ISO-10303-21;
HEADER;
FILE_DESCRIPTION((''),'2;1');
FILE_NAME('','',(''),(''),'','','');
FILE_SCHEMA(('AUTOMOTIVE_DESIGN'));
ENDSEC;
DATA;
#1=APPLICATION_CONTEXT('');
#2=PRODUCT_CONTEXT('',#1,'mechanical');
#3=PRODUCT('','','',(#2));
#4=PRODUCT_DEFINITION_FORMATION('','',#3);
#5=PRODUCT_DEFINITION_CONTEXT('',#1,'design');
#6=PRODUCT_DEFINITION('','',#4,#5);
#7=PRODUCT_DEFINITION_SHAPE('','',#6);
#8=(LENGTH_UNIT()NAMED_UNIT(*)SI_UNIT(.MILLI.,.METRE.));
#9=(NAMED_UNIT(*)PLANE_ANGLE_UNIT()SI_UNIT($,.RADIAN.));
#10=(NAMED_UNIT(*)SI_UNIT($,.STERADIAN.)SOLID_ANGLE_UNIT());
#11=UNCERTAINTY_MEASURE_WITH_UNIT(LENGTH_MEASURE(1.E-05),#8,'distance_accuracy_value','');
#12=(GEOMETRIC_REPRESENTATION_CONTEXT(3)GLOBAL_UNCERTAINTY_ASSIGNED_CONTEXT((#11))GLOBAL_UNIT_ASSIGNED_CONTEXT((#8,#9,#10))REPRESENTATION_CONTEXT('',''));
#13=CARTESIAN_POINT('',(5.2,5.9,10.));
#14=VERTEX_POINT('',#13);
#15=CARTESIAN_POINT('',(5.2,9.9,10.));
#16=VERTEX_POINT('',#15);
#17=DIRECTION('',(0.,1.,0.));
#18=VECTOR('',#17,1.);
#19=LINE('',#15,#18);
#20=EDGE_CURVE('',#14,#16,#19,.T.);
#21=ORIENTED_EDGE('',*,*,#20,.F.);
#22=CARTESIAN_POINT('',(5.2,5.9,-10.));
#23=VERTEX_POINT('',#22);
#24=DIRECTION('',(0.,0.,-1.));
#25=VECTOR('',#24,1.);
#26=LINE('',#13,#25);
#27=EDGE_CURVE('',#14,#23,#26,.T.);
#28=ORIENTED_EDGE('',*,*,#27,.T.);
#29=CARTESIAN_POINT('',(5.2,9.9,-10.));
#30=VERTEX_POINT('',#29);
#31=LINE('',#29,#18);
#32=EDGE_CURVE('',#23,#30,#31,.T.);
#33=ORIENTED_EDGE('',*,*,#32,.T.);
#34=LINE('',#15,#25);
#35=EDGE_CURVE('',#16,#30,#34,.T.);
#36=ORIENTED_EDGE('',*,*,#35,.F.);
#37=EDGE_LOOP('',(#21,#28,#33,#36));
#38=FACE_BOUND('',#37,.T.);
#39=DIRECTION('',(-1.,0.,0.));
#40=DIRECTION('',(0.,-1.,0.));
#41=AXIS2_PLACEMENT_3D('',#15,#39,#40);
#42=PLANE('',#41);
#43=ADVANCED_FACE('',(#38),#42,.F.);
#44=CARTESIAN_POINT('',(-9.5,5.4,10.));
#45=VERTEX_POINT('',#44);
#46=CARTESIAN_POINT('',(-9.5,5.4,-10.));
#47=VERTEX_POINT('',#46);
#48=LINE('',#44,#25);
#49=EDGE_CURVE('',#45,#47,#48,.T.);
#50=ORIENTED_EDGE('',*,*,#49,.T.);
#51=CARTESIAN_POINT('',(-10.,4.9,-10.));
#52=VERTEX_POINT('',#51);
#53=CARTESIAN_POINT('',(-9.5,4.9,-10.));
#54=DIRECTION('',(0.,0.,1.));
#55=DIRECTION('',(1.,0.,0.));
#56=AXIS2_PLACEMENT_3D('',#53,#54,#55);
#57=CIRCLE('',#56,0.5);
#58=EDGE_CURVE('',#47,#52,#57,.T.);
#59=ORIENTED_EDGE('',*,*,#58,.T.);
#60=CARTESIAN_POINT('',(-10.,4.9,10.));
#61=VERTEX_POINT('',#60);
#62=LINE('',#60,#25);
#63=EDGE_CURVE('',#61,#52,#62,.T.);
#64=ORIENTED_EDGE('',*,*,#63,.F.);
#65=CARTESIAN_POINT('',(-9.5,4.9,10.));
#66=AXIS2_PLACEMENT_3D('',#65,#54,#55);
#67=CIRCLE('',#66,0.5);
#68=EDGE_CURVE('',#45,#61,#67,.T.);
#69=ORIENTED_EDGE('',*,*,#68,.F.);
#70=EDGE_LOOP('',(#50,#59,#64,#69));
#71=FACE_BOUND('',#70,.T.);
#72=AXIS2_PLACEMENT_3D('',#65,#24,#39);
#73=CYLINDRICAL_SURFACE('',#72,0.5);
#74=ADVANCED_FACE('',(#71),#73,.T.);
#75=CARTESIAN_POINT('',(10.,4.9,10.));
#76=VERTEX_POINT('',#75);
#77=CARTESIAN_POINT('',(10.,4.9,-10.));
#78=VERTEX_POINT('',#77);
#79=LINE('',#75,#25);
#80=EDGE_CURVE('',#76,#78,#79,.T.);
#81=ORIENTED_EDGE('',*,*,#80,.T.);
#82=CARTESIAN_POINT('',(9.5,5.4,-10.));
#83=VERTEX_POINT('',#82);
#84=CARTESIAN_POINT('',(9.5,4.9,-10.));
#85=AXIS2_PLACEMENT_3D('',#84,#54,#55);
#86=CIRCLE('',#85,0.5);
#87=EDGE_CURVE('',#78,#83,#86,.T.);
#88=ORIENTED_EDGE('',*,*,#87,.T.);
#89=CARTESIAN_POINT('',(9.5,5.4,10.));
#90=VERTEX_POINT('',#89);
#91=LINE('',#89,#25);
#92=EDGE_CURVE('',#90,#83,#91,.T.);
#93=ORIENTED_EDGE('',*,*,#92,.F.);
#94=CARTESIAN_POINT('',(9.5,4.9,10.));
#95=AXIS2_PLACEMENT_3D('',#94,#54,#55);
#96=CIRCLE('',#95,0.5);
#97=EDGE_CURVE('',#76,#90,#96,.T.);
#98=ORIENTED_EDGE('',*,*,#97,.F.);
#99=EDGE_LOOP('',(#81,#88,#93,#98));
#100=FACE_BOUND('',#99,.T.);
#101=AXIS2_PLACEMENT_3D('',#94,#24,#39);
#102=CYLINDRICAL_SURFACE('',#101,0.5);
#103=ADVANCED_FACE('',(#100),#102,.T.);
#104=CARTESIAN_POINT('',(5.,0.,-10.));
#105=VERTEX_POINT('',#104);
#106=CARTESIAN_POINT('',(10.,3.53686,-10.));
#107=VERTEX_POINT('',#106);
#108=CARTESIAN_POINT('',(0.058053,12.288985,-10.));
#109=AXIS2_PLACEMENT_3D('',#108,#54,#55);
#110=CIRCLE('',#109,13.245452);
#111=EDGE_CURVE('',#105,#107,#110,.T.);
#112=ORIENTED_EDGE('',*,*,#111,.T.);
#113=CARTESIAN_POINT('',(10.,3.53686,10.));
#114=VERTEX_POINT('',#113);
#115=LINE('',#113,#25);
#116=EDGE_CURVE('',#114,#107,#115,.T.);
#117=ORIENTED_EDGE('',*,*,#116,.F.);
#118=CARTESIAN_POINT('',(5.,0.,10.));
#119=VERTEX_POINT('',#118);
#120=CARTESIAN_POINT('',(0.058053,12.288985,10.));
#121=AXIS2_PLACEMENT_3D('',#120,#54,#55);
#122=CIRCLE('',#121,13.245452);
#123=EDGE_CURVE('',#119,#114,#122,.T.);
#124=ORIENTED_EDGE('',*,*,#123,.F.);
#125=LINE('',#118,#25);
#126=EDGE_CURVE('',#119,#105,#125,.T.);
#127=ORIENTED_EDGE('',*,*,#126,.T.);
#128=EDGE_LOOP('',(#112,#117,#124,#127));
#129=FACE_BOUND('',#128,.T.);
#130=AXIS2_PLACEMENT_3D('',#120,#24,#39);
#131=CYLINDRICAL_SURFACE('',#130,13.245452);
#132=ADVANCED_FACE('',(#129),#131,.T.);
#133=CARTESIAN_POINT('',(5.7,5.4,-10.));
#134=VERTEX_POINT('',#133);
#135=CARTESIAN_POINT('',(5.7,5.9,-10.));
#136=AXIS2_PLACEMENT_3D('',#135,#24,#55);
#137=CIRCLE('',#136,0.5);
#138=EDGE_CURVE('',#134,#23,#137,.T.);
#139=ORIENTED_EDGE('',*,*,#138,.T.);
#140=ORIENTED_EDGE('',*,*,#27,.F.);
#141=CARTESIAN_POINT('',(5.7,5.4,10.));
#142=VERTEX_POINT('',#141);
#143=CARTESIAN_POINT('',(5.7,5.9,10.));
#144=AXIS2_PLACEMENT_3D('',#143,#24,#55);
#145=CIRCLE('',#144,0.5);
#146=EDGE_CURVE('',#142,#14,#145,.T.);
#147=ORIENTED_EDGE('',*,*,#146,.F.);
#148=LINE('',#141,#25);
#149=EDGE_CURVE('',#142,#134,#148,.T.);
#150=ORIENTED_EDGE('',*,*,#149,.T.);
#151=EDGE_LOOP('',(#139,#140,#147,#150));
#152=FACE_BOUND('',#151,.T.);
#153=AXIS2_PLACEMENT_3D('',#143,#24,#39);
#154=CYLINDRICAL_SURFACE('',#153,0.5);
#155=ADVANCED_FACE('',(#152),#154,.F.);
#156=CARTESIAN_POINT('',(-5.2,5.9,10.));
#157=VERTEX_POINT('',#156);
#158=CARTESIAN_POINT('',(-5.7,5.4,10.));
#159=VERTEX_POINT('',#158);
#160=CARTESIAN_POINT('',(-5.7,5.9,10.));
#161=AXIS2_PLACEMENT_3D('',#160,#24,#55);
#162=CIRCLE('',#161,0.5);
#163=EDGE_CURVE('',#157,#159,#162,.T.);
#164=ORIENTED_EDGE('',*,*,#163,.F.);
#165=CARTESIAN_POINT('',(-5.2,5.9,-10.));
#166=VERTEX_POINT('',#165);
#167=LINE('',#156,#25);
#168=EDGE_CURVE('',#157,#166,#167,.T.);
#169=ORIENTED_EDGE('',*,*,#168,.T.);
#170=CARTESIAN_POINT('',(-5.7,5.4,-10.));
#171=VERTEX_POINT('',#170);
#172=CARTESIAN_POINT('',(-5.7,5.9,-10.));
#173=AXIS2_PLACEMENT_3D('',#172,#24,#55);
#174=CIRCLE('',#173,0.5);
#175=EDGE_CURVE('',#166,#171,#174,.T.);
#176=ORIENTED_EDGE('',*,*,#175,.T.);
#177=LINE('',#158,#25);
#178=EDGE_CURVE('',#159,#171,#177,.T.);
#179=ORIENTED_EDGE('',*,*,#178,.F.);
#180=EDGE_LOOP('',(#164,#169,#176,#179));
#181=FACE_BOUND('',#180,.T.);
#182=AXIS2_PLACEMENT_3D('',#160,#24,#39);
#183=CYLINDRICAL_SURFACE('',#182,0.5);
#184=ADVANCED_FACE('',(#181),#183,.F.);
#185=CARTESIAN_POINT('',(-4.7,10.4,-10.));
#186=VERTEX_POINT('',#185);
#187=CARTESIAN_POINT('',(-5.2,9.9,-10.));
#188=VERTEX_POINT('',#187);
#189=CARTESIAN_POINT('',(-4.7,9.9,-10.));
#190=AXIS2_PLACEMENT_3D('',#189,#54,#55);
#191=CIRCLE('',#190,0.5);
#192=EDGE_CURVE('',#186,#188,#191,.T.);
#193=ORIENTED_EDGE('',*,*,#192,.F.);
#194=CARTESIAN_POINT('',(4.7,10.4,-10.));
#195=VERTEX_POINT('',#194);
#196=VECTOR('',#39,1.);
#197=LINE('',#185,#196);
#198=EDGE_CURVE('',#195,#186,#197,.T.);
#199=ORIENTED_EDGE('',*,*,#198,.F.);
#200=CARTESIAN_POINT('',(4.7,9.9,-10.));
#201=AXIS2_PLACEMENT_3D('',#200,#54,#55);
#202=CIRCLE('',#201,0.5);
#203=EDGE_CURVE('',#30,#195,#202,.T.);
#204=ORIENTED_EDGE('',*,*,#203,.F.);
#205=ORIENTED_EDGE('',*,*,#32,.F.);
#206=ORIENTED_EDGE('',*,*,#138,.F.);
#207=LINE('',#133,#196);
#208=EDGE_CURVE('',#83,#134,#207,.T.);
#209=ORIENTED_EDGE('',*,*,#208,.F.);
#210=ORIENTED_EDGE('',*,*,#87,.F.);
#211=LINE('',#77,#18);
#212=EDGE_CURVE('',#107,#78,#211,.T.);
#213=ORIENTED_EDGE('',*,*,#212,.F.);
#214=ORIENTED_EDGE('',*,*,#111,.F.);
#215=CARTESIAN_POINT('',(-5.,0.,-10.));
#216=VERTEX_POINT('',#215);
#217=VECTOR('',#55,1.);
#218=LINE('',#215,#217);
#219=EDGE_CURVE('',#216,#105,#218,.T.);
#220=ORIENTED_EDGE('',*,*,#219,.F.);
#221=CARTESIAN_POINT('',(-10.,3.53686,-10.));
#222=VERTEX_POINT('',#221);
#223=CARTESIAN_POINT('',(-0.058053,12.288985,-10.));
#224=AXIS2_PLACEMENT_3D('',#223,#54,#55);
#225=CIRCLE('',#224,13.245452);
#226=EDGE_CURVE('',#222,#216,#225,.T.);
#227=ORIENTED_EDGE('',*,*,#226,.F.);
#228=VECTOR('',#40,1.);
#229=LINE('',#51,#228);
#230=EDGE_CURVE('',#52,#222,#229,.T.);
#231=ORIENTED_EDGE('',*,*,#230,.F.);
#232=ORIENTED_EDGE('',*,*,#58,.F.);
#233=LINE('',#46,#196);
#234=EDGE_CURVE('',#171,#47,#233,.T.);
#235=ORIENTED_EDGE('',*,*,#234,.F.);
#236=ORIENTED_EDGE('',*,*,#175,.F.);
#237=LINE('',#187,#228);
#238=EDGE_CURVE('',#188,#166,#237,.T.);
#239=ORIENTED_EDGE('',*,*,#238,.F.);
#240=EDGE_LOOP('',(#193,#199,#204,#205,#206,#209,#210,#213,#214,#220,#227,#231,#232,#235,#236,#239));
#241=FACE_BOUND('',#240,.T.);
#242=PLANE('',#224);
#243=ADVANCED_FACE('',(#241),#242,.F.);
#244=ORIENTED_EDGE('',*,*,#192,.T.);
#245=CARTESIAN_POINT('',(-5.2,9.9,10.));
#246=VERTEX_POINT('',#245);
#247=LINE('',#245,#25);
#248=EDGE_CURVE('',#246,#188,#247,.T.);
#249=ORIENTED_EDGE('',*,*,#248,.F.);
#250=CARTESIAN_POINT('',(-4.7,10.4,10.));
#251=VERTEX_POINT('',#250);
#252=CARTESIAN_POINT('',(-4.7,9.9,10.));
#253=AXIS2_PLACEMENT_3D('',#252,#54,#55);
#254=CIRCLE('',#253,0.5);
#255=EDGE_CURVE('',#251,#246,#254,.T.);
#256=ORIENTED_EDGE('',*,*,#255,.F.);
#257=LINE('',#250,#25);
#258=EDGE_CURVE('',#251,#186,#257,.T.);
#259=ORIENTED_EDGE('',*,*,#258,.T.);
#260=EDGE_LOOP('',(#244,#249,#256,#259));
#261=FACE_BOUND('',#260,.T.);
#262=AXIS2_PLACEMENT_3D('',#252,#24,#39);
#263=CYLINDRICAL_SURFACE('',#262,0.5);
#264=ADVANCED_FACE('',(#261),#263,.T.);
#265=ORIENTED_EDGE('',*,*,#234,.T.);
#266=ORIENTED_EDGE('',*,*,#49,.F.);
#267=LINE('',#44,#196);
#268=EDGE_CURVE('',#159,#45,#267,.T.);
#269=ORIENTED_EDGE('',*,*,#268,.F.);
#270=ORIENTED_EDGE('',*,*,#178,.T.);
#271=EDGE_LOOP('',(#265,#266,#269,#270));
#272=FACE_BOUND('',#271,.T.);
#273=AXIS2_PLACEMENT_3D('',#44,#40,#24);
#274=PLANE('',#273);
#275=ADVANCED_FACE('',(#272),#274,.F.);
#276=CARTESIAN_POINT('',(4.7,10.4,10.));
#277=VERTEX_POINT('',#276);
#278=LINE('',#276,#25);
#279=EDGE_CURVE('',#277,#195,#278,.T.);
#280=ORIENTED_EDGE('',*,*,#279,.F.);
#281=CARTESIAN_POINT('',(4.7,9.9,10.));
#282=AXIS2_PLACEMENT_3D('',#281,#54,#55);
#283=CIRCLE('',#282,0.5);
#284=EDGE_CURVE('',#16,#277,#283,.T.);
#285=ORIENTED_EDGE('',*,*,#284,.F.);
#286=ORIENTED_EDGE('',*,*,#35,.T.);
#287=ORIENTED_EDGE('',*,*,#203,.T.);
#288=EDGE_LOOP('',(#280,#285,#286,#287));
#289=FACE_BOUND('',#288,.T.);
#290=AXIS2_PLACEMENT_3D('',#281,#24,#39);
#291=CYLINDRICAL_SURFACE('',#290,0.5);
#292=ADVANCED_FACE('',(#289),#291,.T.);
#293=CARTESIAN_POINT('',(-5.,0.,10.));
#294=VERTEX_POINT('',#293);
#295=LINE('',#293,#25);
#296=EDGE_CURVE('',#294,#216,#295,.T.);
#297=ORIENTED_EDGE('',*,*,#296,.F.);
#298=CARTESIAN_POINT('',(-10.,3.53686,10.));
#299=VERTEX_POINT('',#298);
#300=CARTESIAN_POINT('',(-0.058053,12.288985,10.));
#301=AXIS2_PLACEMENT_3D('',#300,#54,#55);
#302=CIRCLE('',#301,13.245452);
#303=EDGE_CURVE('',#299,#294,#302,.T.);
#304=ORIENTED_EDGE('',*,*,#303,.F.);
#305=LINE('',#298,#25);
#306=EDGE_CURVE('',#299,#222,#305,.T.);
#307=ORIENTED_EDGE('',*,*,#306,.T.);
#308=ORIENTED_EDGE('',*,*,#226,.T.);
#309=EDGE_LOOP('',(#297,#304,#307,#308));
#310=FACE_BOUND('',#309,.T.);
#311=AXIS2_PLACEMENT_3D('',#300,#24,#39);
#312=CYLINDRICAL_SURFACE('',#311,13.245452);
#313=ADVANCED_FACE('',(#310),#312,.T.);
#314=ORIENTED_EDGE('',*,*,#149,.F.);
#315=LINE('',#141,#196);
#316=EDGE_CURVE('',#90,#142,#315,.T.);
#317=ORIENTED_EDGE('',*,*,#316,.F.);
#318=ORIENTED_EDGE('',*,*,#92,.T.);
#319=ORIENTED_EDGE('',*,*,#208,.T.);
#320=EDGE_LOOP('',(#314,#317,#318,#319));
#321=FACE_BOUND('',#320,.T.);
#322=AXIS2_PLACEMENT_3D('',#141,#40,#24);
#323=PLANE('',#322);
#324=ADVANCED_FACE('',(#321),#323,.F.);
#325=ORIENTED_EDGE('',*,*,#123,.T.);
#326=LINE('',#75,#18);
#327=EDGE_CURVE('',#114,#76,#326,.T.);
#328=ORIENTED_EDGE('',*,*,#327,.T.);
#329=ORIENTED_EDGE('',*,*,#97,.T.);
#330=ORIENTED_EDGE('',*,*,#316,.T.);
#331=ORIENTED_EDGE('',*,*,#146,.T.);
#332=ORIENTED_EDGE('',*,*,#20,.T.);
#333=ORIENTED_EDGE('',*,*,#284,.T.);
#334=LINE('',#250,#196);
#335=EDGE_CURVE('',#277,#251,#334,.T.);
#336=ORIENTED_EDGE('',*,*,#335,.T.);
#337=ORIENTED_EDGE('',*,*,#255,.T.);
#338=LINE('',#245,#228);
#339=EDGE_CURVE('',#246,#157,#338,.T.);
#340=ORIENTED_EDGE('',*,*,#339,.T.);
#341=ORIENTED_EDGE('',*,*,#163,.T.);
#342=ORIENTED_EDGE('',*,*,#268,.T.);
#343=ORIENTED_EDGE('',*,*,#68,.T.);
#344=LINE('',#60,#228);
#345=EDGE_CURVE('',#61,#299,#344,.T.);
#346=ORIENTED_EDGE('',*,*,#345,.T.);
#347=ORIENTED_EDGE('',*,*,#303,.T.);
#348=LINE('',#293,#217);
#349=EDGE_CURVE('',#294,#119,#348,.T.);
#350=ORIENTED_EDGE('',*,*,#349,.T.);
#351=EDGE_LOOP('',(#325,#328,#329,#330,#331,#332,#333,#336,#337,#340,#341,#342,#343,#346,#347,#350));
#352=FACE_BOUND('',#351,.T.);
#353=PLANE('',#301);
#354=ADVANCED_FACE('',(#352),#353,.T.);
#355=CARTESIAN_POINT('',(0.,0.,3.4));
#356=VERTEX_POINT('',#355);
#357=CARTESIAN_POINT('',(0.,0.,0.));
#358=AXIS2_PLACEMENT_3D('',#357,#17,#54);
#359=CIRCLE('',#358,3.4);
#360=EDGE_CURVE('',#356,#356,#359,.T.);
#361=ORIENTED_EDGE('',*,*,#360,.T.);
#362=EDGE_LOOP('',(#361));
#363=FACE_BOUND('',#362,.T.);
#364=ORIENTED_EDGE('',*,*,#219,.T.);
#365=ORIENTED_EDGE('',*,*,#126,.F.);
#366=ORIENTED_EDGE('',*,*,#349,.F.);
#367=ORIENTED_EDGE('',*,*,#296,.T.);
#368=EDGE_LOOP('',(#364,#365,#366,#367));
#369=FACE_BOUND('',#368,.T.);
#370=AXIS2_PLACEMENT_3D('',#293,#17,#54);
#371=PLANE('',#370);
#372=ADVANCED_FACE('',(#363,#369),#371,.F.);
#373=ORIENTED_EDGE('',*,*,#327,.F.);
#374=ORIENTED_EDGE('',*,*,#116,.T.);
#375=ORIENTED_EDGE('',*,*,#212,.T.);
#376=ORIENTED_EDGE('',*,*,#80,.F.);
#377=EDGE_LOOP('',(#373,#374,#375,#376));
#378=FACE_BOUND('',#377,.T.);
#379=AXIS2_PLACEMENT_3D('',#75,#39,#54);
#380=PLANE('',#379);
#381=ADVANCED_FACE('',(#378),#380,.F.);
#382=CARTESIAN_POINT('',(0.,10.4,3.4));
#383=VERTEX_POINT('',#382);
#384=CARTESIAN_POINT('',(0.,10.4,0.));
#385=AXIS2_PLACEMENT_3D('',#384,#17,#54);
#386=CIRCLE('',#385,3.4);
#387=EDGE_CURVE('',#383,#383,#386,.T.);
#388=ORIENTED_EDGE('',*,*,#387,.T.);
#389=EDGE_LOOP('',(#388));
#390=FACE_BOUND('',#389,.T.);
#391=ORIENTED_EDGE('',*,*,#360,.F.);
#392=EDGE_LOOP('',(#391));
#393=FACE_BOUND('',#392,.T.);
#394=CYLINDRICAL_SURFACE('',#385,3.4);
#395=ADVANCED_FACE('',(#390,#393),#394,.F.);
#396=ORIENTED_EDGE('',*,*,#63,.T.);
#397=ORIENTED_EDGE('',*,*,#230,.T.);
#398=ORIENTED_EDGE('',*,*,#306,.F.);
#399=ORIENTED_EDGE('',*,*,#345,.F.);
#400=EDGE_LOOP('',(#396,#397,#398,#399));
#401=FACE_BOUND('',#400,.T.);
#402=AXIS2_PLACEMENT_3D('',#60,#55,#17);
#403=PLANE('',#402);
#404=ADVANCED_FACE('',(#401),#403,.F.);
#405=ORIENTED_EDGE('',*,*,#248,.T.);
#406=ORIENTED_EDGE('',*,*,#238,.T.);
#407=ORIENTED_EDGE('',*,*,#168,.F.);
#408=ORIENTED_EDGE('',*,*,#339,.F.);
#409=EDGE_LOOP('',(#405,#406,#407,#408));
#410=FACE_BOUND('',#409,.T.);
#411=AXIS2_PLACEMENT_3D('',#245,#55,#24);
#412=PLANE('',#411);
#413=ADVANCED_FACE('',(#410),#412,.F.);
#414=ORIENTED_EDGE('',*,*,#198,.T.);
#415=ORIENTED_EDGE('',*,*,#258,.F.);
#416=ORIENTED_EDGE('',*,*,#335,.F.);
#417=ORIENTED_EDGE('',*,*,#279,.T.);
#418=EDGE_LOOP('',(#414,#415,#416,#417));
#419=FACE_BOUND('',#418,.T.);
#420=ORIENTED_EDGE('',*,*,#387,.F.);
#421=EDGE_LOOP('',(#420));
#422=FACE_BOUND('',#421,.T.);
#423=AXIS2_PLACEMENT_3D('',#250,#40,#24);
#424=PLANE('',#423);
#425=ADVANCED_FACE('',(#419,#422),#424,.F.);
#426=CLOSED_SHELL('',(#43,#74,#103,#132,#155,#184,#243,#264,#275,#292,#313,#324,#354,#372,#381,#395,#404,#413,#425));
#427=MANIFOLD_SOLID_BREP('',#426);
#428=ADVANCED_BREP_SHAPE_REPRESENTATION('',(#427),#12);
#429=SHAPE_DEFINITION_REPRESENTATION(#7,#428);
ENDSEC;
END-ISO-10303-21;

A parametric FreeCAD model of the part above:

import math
import FreeCAD as App
import Part
import Sketcher

V = App.Vector

doc = App.newDocument("Part")
body = doc.addObject("PartDesign::Body", "Body")

sketch1 = doc.addObject("Sketcher::SketchObject", "Sketch")
body.addObject(sketch1)
sketch1.AttachmentSupport = (doc.XY_Plane, [""])
sketch1.MapMode = "FlatFace"
sketch1.addGeometry([
    Part.LineSegment(V(-5, 0, 0), V(5, 0, 0)),
    Part.ArcOfCircle(Part.Circle(V(0.06, 12.29, 0), V(0, 0, 1), 13.25), math.radians(-68), math.radians(-41)),
    Part.LineSegment(V(10, 3.54, 0), V(10, 4.9, 0)),
    Part.ArcOfCircle(Part.Circle(V(9.5, 4.9, 0), V(0, 0, 1), 0.5), math.radians(0), math.radians(90)),
    Part.LineSegment(V(9.5, 5.4, 0), V(5.7, 5.4, 0)),
    Part.ArcOfCircle(Part.Circle(V(5.7, 5.9, 0), V(0, 0, 1), 0.5), math.radians(180), math.radians(270)),
    Part.LineSegment(V(5.2, 5.9, 0), V(5.2, 9.9, 0)),
    Part.ArcOfCircle(Part.Circle(V(4.7, 9.9, 0), V(0, 0, 1), 0.5), math.radians(0), math.radians(90)),
    Part.LineSegment(V(4.7, 10.4, 0), V(-4.7, 10.4, 0)),
    Part.ArcOfCircle(Part.Circle(V(-4.7, 9.9, 0), V(0, 0, 1), 0.5), math.radians(90), math.radians(180)),
    Part.LineSegment(V(-5.2, 9.9, 0), V(-5.2, 5.9, 0)),
    Part.ArcOfCircle(Part.Circle(V(-5.7, 5.9, 0), V(0, 0, 1), 0.5), math.radians(-90), math.radians(0)),
    Part.LineSegment(V(-5.7, 5.4, 0), V(-9.5, 5.4, 0)),
    Part.ArcOfCircle(Part.Circle(V(-9.5, 4.9, 0), V(0, 0, 1), 0.5), math.radians(90), math.radians(180)),
    Part.LineSegment(V(-10, 4.9, 0), V(-10, 3.54, 0)),
    Part.ArcOfCircle(Part.Circle(V(-0.06, 12.29, 0), V(0, 0, 1), 13.25), math.radians(-139), math.radians(-112)),
], False)
sketch1.addConstraint([
    Sketcher.Constraint("Coincident", 0, 2, 1, 1),
    Sketcher.Constraint("Coincident", 1, 2, 2, 1),
    Sketcher.Constraint("Tangent", 2, 2, 3, 1),
    Sketcher.Constraint("Tangent", 3, 2, 4, 1),
    Sketcher.Constraint("Tangent", 4, 2, 5, 2),
    Sketcher.Constraint("Tangent", 5, 1, 6, 1),
    Sketcher.Constraint("Tangent", 6, 2, 7, 1),
    Sketcher.Constraint("Tangent", 7, 2, 8, 1),
    Sketcher.Constraint("Tangent", 8, 2, 9, 1),
    Sketcher.Constraint("Tangent", 9, 2, 10, 1),
    Sketcher.Constraint("Tangent", 10, 2, 11, 2),
    Sketcher.Constraint("Tangent", 11, 1, 12, 1),
    Sketcher.Constraint("Tangent", 12, 2, 13, 1),
    Sketcher.Constraint("Tangent", 13, 2, 14, 1),
    Sketcher.Constraint("Coincident", 14, 2, 15, 1),
    Sketcher.Constraint("Coincident", 15, 2, 0, 1),
    Sketcher.Constraint("Horizontal", 0),
    Sketcher.Constraint("Vertical", 2),
    Sketcher.Constraint("Horizontal", 4),
    Sketcher.Constraint("Vertical", 6),
    Sketcher.Constraint("Horizontal", 8),
    Sketcher.Constraint("Vertical", 10),
    Sketcher.Constraint("Horizontal", 12),
    Sketcher.Constraint("Vertical", 14),
    Sketcher.Constraint("Equal", 3, 5),
    Sketcher.Constraint("Equal", 5, 7),
    Sketcher.Constraint("Equal", 7, 9),
    Sketcher.Constraint("Equal", 9, 11),
    Sketcher.Constraint("Equal", 11, 13),
    Sketcher.Constraint("Equal", 1, 15),
    Sketcher.Constraint("Symmetric", 0, 2, 15, 2, -1, 1),
    Sketcher.Constraint("Symmetric", 5, 3, 11, 3, -2),
    Sketcher.Constraint("Symmetric", 1, 2, 14, 2, -2),
    Sketcher.Constraint("Radius", 3, 0.5),
    Sketcher.Constraint("DistanceX", 0, 1, 0, 2, 10.0),
    Sketcher.Constraint("DistanceY", 6, 1, 6, 2, 4.0),
    Sketcher.Constraint("DistanceX", 4, 2, 4, 1, 3.8),
    Sketcher.Constraint("DistanceX", 8, 2, 8, 1, 9.4),
    Sketcher.Constraint("DistanceY", -1, 1, 3, 3, 4.9),
    Sketcher.Constraint("Radius", 1, 13.245452),
    Sketcher.Constraint("DistanceY", 2, 1, 2, 2, 1.36314),
])
pad1 = doc.addObject("PartDesign::Pad", "Pad")
body.addObject(pad1)
pad1.Profile = sketch1
pad1.Length = 20
pad1.Midplane = True

sketch2 = doc.addObject("Sketcher::SketchObject", "Sketch001")
body.addObject(sketch2)
sketch2.AttachmentSupport = (doc.XZ_Plane, [""])
sketch2.MapMode = "FlatFace"
sketch2.AttachmentOffset = App.Placement(V(0, 0, -10.4), App.Rotation())
sketch2.addGeometry(Part.Circle(V(0, 0, 0), V(0, 0, 1), 3.4), False)
sketch2.addConstraint([
    Sketcher.Constraint("Coincident", 0, 3, -1, 1),
    Sketcher.Constraint("Diameter", 0, 6.8),
])
doc.recompute()
hole = doc.addObject("PartDesign::Hole", "Hole")
body.addObject(hole)
hole.Profile = sketch2
hole.ThreadType = "None"
hole.Diameter = 6.8
hole.DepthType = "Dimension"
hole.Depth = 19.75
hole.DrillPoint = "Angled"
hole.DrillPointAngle = 118
hole.Reversed = True

doc.recompute()
